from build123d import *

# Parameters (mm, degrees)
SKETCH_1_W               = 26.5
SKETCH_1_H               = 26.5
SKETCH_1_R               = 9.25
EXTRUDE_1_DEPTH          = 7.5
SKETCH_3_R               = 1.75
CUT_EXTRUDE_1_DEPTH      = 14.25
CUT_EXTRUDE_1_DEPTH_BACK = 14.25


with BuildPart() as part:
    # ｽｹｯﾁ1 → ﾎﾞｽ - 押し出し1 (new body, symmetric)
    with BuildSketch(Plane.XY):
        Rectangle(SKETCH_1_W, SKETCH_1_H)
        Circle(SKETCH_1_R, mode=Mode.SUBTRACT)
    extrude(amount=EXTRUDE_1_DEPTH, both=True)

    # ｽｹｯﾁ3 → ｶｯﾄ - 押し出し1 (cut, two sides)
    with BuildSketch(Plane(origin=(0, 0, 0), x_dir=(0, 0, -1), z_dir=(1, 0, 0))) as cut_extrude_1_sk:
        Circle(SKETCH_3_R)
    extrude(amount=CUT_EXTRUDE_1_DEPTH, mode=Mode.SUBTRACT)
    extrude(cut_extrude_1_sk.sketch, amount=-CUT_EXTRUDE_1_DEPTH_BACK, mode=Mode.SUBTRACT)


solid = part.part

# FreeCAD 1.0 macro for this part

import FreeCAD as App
import Part
import Sketcher

V = App.Vector
Q = App.Units.Quantity


def add_polygon(sketch, points):
    """Adds a closed chain of lines whose ends are joined by coincident constraints."""
    first, n = sketch.GeometryCount, len(points)
    for a, b in zip(points, points[1:] + points[:1]):
        sketch.addGeometry(Part.LineSegment(App.Vector(*a, 0), App.Vector(*b, 0)), False)
    for i in range(n):
        sketch.addConstraint(Sketcher.Constraint("Coincident", first + i, 2, first + (i + 1) % n, 1))

doc = App.newDocument("Part")
body = doc.addObject("PartDesign::Body", "Body")

sketch1 = doc.addObject("Sketcher::SketchObject", "Sketch")
body.addObject(sketch1)
sketch1.AttachmentSupport = (doc.XY_Plane, [""])
sketch1.MapMode = "FlatFace"
add_polygon(sketch1, [(-13, 13), (-13, -13), (13, -13), (13, 13)])
sketch1.addGeometry(Part.Circle(V(0, 0, 0), V(0, 0, 1), 9), False)
sketch1.addConstraint([
    Sketcher.Constraint("Vertical", 0),
    Sketcher.Constraint("Horizontal", 1),
    Sketcher.Constraint("Vertical", 2),
    Sketcher.Constraint("Horizontal", 3),
    Sketcher.Constraint("Coincident", 4, 3, -1, 1),
    Sketcher.Constraint("Symmetric", 0, 2, 2, 2, -1, 1),
    Sketcher.Constraint("Equal", 3, 0),
    Sketcher.Constraint("Diameter", 4, Q("18.5 mm")),
    Sketcher.Constraint("DistanceX", 1, 1, 1, 2, Q("26.5 mm")),
])
pad1 = doc.addObject("PartDesign::Pad", "Pad")
body.addObject(pad1)
pad1.Profile = sketch1
pad1.Length = 15
pad1.Midplane = True

sketch2 = doc.addObject("Sketcher::SketchObject", "Sketch001")
body.addObject(sketch2)
sketch2.AttachmentSupport = (doc.YZ_Plane, [""])
sketch2.MapMode = "FlatFace"
sketch2.addGeometry(Part.Circle(V(0, 0, 0), V(0, 0, 1), 1.8), False)
sketch2.addConstraint([
    Sketcher.Constraint("Coincident", 0, 3, -1, 1),
    Sketcher.Constraint("Diameter", 0, Q("3.5 mm")),
])
pocket1 = doc.addObject("PartDesign::Pocket", "Pocket")
body.addObject(pocket1)
pocket1.Profile = sketch2
pocket1.Type = "ThroughAll"
pocket1.Midplane = True

doc.recompute()
